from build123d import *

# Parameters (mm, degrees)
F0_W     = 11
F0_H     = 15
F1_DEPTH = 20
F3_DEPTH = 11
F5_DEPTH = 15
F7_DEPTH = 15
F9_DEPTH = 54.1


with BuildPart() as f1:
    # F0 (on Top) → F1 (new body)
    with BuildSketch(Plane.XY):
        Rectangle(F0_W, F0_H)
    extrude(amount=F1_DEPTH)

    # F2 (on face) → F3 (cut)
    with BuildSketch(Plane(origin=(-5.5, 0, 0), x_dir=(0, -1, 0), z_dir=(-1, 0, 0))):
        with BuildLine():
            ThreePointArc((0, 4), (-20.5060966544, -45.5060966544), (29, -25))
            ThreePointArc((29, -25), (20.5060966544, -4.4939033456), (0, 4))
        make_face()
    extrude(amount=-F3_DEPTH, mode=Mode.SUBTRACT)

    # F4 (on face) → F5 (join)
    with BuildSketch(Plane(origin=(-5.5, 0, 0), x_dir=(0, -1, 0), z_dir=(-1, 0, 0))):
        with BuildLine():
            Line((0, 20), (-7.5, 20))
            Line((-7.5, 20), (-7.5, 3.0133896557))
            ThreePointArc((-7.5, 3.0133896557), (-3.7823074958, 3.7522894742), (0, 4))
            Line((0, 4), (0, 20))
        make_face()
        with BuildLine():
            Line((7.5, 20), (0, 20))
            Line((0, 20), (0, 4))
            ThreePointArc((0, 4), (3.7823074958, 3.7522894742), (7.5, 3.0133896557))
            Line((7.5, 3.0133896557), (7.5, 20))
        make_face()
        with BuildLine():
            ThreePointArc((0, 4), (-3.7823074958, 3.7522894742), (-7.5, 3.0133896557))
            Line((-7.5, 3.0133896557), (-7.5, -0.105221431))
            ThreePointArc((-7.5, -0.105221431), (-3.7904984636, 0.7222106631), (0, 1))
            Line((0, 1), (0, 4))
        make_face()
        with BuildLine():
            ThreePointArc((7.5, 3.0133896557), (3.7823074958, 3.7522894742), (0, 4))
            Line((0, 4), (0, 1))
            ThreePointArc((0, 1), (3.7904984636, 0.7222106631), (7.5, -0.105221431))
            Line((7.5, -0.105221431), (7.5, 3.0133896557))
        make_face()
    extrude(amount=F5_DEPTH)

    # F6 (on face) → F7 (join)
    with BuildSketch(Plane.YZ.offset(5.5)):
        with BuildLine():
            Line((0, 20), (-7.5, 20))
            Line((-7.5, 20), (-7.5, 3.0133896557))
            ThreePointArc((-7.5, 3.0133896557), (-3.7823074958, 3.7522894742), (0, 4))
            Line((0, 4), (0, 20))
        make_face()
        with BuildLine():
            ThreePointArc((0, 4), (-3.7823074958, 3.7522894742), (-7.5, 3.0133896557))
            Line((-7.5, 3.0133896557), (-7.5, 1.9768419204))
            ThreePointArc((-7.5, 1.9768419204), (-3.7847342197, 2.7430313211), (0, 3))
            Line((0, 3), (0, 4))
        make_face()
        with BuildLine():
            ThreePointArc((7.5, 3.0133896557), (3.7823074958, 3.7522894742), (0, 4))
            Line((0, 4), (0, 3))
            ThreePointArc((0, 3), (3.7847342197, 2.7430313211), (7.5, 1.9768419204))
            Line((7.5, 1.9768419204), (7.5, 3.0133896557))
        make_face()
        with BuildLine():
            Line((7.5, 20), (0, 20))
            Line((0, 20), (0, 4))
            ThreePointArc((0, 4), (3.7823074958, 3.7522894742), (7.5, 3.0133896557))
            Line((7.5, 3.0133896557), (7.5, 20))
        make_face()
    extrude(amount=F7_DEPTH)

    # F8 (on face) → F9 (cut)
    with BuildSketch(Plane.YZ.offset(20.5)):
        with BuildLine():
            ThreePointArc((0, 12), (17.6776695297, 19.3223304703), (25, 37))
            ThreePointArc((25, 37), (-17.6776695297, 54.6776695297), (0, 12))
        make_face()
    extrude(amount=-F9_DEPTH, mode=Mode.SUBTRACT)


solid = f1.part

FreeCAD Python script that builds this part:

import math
import FreeCAD as App
import Part
import Sketcher
Q = App.Units.Quantity

doc = App.newDocument("Part")
body = doc.addObject("PartDesign::Body", "Body")

# Sketch on XY plane
sketch1 = doc.addObject("Sketcher::SketchObject", "Sketch")
body.addObject(sketch1)
sketch1.AttachmentSupport = (doc.XY_Plane, [""])
sketch1.MapMode = "FlatFace"
sketch1.addGeometry(Part.LineSegment(App.Vector(-6, 8, 0), App.Vector(-6, -8, 0)), False)
sketch1.addGeometry(Part.LineSegment(App.Vector(-6, -8, 0), App.Vector(6, -8, 0)), False)
sketch1.addGeometry(Part.LineSegment(App.Vector(6, -8, 0), App.Vector(6, 8, 0)), False)
sketch1.addGeometry(Part.LineSegment(App.Vector(6, 8, 0), App.Vector(-6, 8, 0)), False)
sketch1.addConstraint(Sketcher.Constraint("Coincident", 0, 2, 1, 1))
sketch1.addConstraint(Sketcher.Constraint("Coincident", 1, 2, 2, 1))
sketch1.addConstraint(Sketcher.Constraint("Coincident", 2, 2, 3, 1))
sketch1.addConstraint(Sketcher.Constraint("Coincident", 3, 2, 0, 1))
sketch1.addConstraint(Sketcher.Constraint("Vertical", 0))
sketch1.addConstraint(Sketcher.Constraint("Horizontal", 1))
sketch1.addConstraint(Sketcher.Constraint("Vertical", 2))
sketch1.addConstraint(Sketcher.Constraint("Horizontal", 3))
sketch1.addConstraint(Sketcher.Constraint("Symmetric", 0, 2, 2, 2, -1, 1))
sketch1.addConstraint(Sketcher.Constraint("DistanceX", 1, 1, 1, 2, Q("11 mm")))
sketch1.addConstraint(Sketcher.Constraint("DistanceY", 0, 2, 0, 1, Q("15 mm")))
pad1 = doc.addObject("PartDesign::Pad", "Pad")
body.addObject(pad1)
pad1.Profile = sketch1
pad1.Length = 20

# Sketch on YZ plane
sketch2 = doc.addObject("Sketcher::SketchObject", "Sketch001")
body.addObject(sketch2)
sketch2.AttachmentSupport = (doc.YZ_Plane, [""])
sketch2.MapMode = "FlatFace"
sketch2.AttachmentOffset = App.Placement(App.Vector(0, 0, -5.5), App.Rotation())
sketch2.addGeometry(Part.ArcOfCircle(Part.Circle(App.Vector(0, -25, 0), App.Vector(0, 0, 1), 29), math.radians(180), math.radians(450)), False)
sketch2.addGeometry(Part.ArcOfCircle(Part.Circle(App.Vector(0, -25, 0), App.Vector(0, 0, 1), 29), math.radians(90), math.radians(180)), False)
sketch2.addConstraint(Sketcher.Constraint("Tangent", 0, 1, 1, 2))
sketch2.addConstraint(Sketcher.Constraint("Coincident", 1, 1, 0, 2))
sketch2.addConstraint(Sketcher.Constraint("PointOnObject", 0, 3, -2))
sketch2.addConstraint(Sketcher.Constraint("PointOnObject", 1, 1, -2))
sketch2.addConstraint(Sketcher.Constraint("Horizontal", 1, 3, 0, 1))
sketch2.addConstraint(Sketcher.Constraint("Radius", 0, Q("29 mm")))
sketch2.addConstraint(Sketcher.Constraint("DistanceY", 0, 3, -1, 1, Q("25 mm")))
pocket1 = doc.addObject("PartDesign::Pocket", "Pocket")
body.addObject(pocket1)
pocket1.Profile = sketch2
pocket1.Length = 11
pocket1.Reversed = True

# Sketch on YZ plane
sketch3 = doc.addObject("Sketcher::SketchObject", "Sketch002")
body.addObject(sketch3)
sketch3.AttachmentSupport = (doc.YZ_Plane, [""])
sketch3.MapMode = "FlatFace"
sketch3.AttachmentOffset = App.Placement(App.Vector(0, 0, -5.5), App.Rotation())
sketch3.addGeometry(Part.LineSegment(App.Vector(8, 20, 0), App.Vector(8, 0, 0)), False)
sketch3.addGeometry(Part.ArcOfCircle(Part.Circle(App.Vector(0, -25, 0), App.Vector(0, 0, 1), 26), math.radians(73.23), math.radians(90)), False)
sketch3.addGeometry(Part.ArcOfCircle(Part.Circle(App.Vector(0, -25, 0), App.Vector(0, 0, 1), 26), math.radians(90), math.radians(106.77)), False)
sketch3.addGeometry(Part.LineSegment(App.Vector(-8, 0, 0), App.Vector(-8, 20, 0)), False)
sketch3.addGeometry(Part.LineSegment(App.Vector(-8, 20, 0), App.Vector(8, 20, 0)), False)
sketch3.addConstraint(Sketcher.Constraint("Coincident", 0, 2, 1, 1))
sketch3.addConstraint(Sketcher.Constraint("Tangent", 1, 2, 2, 1))
sketch3.addConstraint(Sketcher.Constraint("Coincident", 2, 2, 3, 1))
sketch3.addConstraint(Sketcher.Constraint("Coincident", 3, 2, 4, 1))
sketch3.addConstraint(Sketcher.Constraint("Coincident", 4, 2, 0, 1))
sketch3.addConstraint(Sketcher.Constraint("Vertical", 0))
sketch3.addConstraint(Sketcher.Constraint("Vertical", 3))
sketch3.addConstraint(Sketcher.Constraint("Horizontal", 4))
sketch3.addConstraint(Sketcher.Constraint("Equal", 1, 2))
sketch3.addConstraint(Sketcher.Constraint("Symmetric", 0, 2, 2, 2, -2))
sketch3.addConstraint(Sketcher.Constraint("PointOnObject", 1, 2, -2))
sketch3.addConstraint(Sketcher.Constraint("Radius", 1, Q("26 mm")))
sketch3.addConstraint(Sketcher.Constraint("DistanceX", 4, 1, 4, 2, Q("15 mm")))
sketch3.addConstraint(Sketcher.Constraint("DistanceY", 1, 3, -1, 1, Q("25 mm")))
sketch3.addConstraint(Sketcher.Constraint("DistanceY", -1, 1, 3, 2, Q("20 mm")))
pad2 = doc.addObject("PartDesign::Pad", "Pad001")
body.addObject(pad2)
pad2.Profile = sketch3
pad2.Length = 15
pad2.Reversed = True

# Sketch on YZ plane
sketch4 = doc.addObject("Sketcher::SketchObject", "Sketch003")
body.addObject(sketch4)
sketch4.AttachmentSupport = (doc.YZ_Plane, [""])
sketch4.MapMode = "FlatFace"
sketch4.AttachmentOffset = App.Placement(App.Vector(0, 0, 5.5), App.Rotation())
sketch4.addGeometry(Part.LineSegment(App.Vector(-8, 20, 0), App.Vector(-8, 2, 0)), False)
sketch4.addGeometry(Part.ArcOfCircle(Part.Circle(App.Vector(0, -25, 0), App.Vector(0, 0, 1), 28), math.radians(90), math.radians(105.54)), False)
sketch4.addGeometry(Part.ArcOfCircle(Part.Circle(App.Vector(0, -25, 0), App.Vector(0, 0, 1), 28), math.radians(74.46), math.radians(90)), False)
sketch4.addGeometry(Part.LineSegment(App.Vector(8, 2, 0), App.Vector(8, 20, 0)), False)
sketch4.addGeometry(Part.LineSegment(App.Vector(8, 20, 0), App.Vector(-8, 20, 0)), False)
sketch4.addConstraint(Sketcher.Constraint("Coincident", 0, 2, 1, 2))
sketch4.addConstraint(Sketcher.Constraint("Tangent", 1, 1, 2, 2))
sketch4.addConstraint(Sketcher.Constraint("Coincident", 2, 1, 3, 1))
sketch4.addConstraint(Sketcher.Constraint("Coincident", 3, 2, 4, 1))
sketch4.addConstraint(Sketcher.Constraint("Coincident", 4, 2, 0, 1))
sketch4.addConstraint(Sketcher.Constraint("Vertical", 0))
sketch4.addConstraint(Sketcher.Constraint("Vertical", 3))
sketch4.addConstraint(Sketcher.Constraint("Horizontal", 4))
sketch4.addConstraint(Sketcher.Constraint("Equal", 1, 2))
sketch4.addConstraint(Sketcher.Constraint("Symmetric", 0, 2, 2, 1, -2))
sketch4.addConstraint(Sketcher.Constraint("PointOnObject", 1, 1, -2))
sketch4.addConstraint(Sketcher.Constraint("Radius", 1, Q("28 mm")))
sketch4.addConstraint(Sketcher.Constraint("DistanceX", 4, 2, 4, 1, Q("15 mm")))
sketch4.addConstraint(Sketcher.Constraint("DistanceY", 1, 3, -1, 1, Q("25 mm")))
sketch4.addConstraint(Sketcher.Constraint("DistanceY", -1, 1, 3, 2, Q("20 mm")))
pad3 = doc.addObject("PartDesign::Pad", "Pad002")
body.addObject(pad3)
pad3.Profile = sketch4
pad3.Length = 15

# Sketch on YZ plane
sketch5 = doc.addObject("Sketcher::SketchObject", "Sketch004")
body.addObject(sketch5)
sketch5.AttachmentSupport = (doc.YZ_Plane, [""])
sketch5.MapMode = "FlatFace"
sketch5.AttachmentOffset = App.Placement(App.Vector(0, 0, 20.5), App.Rotation())
sketch5.addGeometry(Part.ArcOfCircle(Part.Circle(App.Vector(0, 37, 0), App.Vector(0, 0, 1), 25), math.radians(-90), math.radians(0)), False)
sketch5.addGeometry(Part.ArcOfCircle(Part.Circle(App.Vector(0, 37, 0), App.Vector(0, 0, 1), 25), math.radians(0), math.radians(270)), False)
sketch5.addConstraint(Sketcher.Constraint("Tangent", 0, 1, 1, 2))
sketch5.addConstraint(Sketcher.Constraint("Coincident", 1, 1, 0, 2))
sketch5.addConstraint(Sketcher.Constraint("PointOnObject", 0, 3, -2))
sketch5.addConstraint(Sketcher.Constraint("PointOnObject", 0, 1, -2))
sketch5.addConstraint(Sketcher.Constraint("Horizontal", 0, 3, 1, 1))
sketch5.addConstraint(Sketcher.Constraint("Radius", 0, Q("25 mm")))
sketch5.addConstraint(Sketcher.Constraint("DistanceY", -1, 1, 0, 3, Q("37 mm")))
pocket2 = doc.addObject("PartDesign::Pocket", "Pocket001")
body.addObject(pocket2)
pocket2.Profile = sketch5
pocket2.Length = 54.1

doc.recompute()
